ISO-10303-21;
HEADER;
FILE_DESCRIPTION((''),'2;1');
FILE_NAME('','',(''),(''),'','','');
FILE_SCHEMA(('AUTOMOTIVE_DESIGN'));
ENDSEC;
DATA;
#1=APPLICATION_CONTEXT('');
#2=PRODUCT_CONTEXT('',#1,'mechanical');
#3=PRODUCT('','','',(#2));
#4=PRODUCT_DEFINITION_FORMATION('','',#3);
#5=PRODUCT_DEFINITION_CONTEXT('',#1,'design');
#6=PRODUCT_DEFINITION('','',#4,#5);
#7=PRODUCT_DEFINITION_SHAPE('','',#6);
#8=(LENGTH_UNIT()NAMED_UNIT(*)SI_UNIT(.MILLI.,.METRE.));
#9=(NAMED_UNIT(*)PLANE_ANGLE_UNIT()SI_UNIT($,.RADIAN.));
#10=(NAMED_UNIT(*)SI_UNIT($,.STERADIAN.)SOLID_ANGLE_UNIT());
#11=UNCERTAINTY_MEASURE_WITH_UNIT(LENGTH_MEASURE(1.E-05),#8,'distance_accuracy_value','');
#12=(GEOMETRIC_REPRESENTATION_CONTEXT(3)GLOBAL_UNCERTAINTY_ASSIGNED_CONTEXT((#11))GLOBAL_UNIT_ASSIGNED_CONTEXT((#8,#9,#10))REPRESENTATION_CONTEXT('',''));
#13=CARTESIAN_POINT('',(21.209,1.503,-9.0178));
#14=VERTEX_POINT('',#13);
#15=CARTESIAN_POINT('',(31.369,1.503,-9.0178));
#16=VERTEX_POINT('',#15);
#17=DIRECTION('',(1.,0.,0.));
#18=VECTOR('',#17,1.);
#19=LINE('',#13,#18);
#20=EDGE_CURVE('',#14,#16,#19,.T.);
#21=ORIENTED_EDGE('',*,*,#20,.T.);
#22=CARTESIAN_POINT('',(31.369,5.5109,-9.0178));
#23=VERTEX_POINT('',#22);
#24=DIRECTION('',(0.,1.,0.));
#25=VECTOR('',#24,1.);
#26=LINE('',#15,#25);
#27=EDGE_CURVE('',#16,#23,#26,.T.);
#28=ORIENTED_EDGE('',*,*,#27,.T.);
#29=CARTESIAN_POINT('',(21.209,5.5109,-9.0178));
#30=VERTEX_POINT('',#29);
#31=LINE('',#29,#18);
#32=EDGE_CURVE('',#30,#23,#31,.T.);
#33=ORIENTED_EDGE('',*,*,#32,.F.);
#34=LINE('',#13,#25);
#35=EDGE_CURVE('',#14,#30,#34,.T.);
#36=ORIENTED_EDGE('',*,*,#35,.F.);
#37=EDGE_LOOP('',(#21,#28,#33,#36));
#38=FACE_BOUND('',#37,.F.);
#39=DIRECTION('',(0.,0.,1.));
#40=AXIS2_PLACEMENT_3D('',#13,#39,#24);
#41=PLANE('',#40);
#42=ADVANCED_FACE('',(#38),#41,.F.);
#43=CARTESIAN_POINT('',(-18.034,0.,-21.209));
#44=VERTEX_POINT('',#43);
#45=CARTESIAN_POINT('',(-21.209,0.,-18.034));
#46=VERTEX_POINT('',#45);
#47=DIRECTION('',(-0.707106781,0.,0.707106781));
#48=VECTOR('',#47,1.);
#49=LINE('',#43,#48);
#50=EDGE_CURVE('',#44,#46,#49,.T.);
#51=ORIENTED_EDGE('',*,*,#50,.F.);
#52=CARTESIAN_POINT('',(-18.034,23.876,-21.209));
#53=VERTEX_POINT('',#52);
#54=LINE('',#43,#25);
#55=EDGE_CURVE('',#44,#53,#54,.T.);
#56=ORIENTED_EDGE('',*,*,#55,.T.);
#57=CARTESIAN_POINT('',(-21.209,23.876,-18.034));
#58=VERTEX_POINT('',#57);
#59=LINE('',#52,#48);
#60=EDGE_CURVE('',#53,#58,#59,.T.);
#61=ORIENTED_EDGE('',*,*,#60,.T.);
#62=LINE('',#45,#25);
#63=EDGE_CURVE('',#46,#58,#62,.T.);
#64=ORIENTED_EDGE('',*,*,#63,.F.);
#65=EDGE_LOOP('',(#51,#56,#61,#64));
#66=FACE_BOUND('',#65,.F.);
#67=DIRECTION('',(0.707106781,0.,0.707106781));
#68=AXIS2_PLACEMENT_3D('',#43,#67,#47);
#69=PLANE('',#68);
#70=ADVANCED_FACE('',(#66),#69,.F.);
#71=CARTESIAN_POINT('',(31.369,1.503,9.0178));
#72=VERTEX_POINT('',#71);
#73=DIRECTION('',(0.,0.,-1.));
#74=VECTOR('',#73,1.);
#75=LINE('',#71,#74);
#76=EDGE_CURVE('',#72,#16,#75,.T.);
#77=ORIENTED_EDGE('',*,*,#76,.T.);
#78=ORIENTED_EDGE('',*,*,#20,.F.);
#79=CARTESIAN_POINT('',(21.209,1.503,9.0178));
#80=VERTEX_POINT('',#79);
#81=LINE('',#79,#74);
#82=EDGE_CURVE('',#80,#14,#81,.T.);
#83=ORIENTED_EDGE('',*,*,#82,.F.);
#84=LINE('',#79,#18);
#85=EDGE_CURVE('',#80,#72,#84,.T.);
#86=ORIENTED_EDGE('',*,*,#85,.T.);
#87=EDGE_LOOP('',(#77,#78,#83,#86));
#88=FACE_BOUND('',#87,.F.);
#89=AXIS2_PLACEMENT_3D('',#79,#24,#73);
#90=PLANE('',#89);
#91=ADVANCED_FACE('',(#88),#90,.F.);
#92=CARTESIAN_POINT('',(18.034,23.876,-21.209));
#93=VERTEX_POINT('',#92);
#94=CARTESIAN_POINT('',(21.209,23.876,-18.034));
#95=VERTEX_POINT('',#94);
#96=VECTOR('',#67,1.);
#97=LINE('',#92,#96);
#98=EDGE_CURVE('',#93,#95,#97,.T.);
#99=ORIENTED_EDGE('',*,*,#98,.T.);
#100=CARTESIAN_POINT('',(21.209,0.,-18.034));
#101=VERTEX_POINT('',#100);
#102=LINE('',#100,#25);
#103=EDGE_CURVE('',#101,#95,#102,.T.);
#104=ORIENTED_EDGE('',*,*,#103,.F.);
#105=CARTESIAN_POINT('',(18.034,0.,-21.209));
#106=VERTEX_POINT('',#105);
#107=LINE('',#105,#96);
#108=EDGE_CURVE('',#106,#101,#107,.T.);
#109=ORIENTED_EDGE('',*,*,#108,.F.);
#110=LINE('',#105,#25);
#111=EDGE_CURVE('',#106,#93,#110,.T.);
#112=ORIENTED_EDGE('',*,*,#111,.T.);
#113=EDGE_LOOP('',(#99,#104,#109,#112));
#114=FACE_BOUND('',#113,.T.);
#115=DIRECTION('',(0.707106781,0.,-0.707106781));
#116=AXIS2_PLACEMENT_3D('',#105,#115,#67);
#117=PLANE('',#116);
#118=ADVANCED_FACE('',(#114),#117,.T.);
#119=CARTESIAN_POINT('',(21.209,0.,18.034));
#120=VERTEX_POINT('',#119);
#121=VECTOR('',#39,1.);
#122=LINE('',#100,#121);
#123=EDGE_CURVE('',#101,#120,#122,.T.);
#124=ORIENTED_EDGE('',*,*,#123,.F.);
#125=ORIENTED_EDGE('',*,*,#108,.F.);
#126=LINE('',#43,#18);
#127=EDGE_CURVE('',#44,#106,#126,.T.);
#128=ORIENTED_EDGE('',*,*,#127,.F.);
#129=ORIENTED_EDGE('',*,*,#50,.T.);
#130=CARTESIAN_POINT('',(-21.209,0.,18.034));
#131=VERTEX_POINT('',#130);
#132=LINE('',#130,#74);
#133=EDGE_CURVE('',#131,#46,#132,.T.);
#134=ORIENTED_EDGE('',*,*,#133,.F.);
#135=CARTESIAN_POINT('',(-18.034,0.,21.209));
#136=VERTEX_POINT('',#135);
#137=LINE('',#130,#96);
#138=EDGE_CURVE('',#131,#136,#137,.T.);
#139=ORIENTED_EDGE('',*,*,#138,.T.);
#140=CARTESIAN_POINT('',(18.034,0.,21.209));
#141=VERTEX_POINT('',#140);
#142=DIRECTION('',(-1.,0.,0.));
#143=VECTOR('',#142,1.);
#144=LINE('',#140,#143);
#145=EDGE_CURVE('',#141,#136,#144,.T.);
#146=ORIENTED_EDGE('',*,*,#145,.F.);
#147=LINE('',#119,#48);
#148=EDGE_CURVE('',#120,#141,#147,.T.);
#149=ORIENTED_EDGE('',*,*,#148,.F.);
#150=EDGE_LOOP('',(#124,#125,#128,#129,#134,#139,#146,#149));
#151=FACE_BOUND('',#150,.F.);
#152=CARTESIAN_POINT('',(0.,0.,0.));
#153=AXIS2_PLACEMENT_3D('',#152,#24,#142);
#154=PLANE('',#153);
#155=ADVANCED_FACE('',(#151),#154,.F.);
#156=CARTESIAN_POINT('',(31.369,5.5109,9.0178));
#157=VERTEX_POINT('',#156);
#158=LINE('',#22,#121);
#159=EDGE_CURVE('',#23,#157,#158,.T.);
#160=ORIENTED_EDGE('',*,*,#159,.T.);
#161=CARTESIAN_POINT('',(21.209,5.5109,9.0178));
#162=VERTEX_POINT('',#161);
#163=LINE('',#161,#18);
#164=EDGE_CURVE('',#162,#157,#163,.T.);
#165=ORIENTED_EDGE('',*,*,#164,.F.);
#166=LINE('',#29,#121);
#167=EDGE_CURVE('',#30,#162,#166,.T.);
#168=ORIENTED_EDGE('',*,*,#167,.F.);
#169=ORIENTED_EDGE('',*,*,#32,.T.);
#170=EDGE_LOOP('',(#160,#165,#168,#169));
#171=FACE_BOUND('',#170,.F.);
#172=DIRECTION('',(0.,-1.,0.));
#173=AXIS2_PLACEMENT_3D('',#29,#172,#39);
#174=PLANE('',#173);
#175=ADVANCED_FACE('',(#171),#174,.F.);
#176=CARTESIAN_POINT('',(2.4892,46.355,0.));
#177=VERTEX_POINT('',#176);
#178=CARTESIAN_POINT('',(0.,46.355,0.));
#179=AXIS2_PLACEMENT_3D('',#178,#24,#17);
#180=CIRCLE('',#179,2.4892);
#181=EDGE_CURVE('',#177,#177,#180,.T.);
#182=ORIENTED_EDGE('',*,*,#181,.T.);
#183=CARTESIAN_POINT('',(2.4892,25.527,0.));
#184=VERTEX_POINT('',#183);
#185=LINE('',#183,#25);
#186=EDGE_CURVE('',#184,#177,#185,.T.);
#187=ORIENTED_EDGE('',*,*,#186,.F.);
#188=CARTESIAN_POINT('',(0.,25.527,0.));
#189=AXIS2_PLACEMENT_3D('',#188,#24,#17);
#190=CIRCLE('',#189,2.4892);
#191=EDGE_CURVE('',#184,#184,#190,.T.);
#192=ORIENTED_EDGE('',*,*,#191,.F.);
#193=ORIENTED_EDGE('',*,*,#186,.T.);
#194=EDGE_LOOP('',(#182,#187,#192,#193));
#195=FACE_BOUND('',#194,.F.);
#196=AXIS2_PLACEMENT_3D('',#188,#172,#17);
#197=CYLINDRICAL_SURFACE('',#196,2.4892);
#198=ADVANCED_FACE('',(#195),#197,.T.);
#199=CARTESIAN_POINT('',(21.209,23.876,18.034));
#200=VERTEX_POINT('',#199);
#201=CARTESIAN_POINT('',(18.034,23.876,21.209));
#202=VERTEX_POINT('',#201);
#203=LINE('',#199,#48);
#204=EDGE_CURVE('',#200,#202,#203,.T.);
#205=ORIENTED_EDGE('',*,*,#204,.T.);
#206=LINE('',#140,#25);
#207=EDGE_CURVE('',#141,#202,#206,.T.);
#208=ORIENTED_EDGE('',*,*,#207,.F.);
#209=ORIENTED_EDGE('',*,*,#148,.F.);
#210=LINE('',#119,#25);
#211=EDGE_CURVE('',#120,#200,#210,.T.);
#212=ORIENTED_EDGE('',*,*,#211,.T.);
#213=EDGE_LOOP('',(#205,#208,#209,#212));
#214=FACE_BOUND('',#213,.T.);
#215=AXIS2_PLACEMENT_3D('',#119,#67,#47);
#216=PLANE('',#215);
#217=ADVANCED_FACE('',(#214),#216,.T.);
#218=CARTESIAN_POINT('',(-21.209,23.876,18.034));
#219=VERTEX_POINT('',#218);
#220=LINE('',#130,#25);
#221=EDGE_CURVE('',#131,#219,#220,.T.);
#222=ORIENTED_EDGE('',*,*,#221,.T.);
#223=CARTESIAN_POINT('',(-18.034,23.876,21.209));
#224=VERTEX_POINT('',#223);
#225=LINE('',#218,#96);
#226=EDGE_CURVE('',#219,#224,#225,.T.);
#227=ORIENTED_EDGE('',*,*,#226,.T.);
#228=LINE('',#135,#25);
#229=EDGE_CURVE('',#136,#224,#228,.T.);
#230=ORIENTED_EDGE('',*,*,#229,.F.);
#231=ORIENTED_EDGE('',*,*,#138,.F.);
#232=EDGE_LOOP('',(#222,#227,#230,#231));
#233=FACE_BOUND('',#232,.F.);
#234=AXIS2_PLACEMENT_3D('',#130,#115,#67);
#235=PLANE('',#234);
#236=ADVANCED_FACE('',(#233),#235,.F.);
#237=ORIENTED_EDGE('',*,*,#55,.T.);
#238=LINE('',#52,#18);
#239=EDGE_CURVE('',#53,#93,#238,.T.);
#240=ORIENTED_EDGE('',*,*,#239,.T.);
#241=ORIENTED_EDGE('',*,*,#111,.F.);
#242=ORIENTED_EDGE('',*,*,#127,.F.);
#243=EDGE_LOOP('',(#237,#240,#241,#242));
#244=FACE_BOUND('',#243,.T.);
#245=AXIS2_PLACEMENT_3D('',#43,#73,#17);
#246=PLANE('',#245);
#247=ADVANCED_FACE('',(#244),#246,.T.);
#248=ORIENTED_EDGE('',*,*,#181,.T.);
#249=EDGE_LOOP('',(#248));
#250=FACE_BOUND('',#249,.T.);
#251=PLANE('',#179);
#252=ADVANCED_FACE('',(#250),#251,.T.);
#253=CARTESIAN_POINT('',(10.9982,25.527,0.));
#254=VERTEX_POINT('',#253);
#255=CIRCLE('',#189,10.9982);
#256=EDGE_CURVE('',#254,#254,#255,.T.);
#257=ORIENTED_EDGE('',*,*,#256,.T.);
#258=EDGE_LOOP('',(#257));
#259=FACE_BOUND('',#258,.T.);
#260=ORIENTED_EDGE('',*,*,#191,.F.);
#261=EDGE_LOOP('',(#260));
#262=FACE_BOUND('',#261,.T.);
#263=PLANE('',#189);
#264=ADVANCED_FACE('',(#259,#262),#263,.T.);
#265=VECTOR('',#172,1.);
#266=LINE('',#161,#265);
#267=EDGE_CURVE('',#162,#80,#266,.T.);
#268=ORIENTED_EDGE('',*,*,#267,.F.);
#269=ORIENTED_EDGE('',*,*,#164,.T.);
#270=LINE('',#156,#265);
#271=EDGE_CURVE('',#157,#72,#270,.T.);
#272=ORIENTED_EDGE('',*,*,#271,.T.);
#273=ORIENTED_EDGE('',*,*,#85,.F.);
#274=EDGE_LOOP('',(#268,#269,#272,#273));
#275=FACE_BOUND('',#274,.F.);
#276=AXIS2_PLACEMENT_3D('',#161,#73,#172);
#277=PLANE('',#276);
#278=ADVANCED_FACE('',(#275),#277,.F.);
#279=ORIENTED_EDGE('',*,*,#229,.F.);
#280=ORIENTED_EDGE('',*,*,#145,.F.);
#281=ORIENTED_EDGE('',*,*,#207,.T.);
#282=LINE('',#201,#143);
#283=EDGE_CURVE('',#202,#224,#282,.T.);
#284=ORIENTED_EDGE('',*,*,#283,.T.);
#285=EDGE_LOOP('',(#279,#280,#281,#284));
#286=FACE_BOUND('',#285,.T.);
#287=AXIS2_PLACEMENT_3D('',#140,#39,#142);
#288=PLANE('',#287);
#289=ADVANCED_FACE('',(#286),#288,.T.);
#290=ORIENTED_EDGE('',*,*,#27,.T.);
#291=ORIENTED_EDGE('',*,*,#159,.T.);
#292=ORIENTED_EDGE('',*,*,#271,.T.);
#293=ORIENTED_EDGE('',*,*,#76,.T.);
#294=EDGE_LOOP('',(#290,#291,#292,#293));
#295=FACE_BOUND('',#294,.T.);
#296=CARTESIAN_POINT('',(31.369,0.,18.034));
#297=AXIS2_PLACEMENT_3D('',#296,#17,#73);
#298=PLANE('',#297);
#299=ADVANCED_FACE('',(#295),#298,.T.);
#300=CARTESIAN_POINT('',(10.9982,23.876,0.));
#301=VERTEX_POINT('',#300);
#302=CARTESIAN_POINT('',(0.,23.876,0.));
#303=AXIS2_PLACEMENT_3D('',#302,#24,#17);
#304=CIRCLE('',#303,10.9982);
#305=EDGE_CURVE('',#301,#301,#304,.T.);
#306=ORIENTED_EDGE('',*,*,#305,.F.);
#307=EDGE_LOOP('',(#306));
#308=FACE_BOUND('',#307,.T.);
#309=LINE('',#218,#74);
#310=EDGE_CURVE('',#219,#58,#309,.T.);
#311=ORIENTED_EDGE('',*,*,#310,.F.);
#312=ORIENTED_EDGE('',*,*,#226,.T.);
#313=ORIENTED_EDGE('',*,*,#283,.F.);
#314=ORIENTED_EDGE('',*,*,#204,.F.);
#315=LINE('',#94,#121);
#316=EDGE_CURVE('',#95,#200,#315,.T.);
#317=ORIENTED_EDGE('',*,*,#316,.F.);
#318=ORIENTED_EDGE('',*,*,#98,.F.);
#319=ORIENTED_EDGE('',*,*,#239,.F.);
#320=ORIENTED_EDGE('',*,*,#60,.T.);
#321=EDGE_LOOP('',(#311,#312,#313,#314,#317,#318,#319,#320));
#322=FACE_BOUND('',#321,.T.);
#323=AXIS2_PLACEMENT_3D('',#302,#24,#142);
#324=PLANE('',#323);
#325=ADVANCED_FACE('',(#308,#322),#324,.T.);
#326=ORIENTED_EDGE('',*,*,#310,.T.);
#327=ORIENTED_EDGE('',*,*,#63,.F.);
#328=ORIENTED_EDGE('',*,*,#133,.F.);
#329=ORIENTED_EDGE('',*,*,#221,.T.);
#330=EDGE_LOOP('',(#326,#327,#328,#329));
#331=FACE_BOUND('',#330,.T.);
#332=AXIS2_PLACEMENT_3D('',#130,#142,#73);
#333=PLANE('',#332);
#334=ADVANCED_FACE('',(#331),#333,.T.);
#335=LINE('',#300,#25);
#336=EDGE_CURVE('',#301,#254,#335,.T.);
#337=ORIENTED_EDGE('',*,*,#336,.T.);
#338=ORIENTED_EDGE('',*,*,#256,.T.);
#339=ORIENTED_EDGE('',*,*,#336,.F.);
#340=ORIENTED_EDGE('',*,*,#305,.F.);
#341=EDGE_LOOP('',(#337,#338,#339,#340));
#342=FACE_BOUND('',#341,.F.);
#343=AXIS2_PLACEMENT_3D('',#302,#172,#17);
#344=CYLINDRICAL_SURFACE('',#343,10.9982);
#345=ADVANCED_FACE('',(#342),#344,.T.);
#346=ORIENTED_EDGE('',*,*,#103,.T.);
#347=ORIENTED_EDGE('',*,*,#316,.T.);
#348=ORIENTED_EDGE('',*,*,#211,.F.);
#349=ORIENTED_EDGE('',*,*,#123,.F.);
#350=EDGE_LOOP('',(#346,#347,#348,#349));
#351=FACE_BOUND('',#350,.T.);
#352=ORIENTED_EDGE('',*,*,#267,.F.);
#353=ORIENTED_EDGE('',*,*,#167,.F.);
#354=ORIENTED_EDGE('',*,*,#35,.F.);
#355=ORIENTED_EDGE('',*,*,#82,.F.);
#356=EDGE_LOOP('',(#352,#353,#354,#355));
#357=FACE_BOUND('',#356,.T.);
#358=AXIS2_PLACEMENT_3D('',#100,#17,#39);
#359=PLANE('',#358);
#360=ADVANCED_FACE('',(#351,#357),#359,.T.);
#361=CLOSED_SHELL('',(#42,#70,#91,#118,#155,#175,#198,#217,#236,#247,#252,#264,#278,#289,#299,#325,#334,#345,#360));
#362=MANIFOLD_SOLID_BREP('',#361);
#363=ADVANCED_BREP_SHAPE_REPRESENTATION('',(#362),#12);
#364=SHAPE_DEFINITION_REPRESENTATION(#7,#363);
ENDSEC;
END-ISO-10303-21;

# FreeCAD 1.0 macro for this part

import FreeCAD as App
import Part
import Sketcher
from FreeCAD import Vector
Q = App.Units.Quantity

doc = App.newDocument("Part")
params = doc.addObject("Spreadsheet::Sheet", "Params")
for row, (alias, value) in enumerate([
    ("pad1_length", "0.94 in"),
    ("sketch2_diameter", "0.866 in"),
    ("pad2_length", "0.065 in"),
    ("sketch3_diameter", "0.196 in"),
    ("pad3_length", "0.82 in"),
    ("pad4_length", "0.4 in"),
], start=1):
    params.set(f"A{row}", alias)
    params.set(f"B{row}", "=" + value)
    params.setAlias(f"B{row}", alias)

body = doc.addObject("PartDesign::Body", "Body")

# Sketch on XZ plane
sketch1 = body.newObject("Sketcher::SketchObject", "Sketch")
sketch1.AttachmentSupport = (doc.getObject("XZ_Plane"), [""])
sketch1.MapMode = "FlatFace"
sketch1.addGeometry([
    Part.LineSegment(Vector(-18, 21.2, 0), Vector(18, 21.2, 0)),  # 0
    Part.LineSegment(Vector(18, 21.2, 0), Vector(21.2, 18, 0)),  # 1
    Part.LineSegment(Vector(21.2, 18, 0), Vector(21.2, -18, 0)),  # 2
    Part.LineSegment(Vector(21.2, -18, 0), Vector(18, -21.2, 0)),  # 3
    Part.LineSegment(Vector(18, -21.2, 0), Vector(-18, -21.2, 0)),  # 4
    Part.LineSegment(Vector(-18, -21.2, 0), Vector(-21.2, -18, 0)),  # 5
    Part.LineSegment(Vector(-21.2, -18, 0), Vector(-21.2, 18, 0)),  # 6
    Part.LineSegment(Vector(-21.2, 18, 0), Vector(-18, 21.2, 0)),  # 7
], False)
sketch1.addConstraint([
    Sketcher.Constraint("Coincident", 0, 2, 1, 1),
    Sketcher.Constraint("Coincident", 1, 2, 2, 1),
    Sketcher.Constraint("Coincident", 2, 2, 3, 1),
    Sketcher.Constraint("Coincident", 3, 2, 4, 1),
    Sketcher.Constraint("Coincident", 4, 2, 5, 1),
    Sketcher.Constraint("Coincident", 5, 2, 6, 1),
    Sketcher.Constraint("Coincident", 6, 2, 7, 1),
    Sketcher.Constraint("Coincident", 7, 2, 0, 1),
    Sketcher.Constraint("Horizontal", 0),
    Sketcher.Constraint("Vertical", 2),
    Sketcher.Constraint("Horizontal", 4),
    Sketcher.Constraint("Vertical", 6),
    Sketcher.Constraint("Symmetric", 0, 2, 4, 2, -1, 1),
    Sketcher.Constraint("Symmetric", 1, 2, 5, 2, -1, 1),
    Sketcher.Constraint("Perpendicular", 1, 3),
    Sketcher.Constraint("Perpendicular", 5, 7),
    Sketcher.Constraint("Horizontal", 2, 2, 5, 2),
    Sketcher.Constraint("Horizontal", 1, 2, 6, 2),
    Sketcher.Constraint("Vertical", 0, 2, 3, 2),
    Sketcher.Constraint("Equal", 4, 2),
    Sketcher.Constraint("DistanceY", 3, 2, 0, 2, Q("1.67 in")),
    Sketcher.Constraint("DistanceX", 0, 2, 1, 2, Q("0.125 in")),
])
pad1 = body.newObject("PartDesign::Pad", "Pad")
pad1.Profile = sketch1
pad1.setExpression("Length", "Params.pad1_length")
pad1.Reversed = True

# Sketch on XZ plane
sketch2 = body.newObject("Sketcher::SketchObject", "Sketch001")
sketch2.AttachmentSupport = (doc.getObject("XZ_Plane"), [""])
sketch2.MapMode = "FlatFace"
sketch2.AttachmentOffset = App.Placement(Vector(0, 0, -0.94 * 25.4), App.Rotation())
sketch2.addGeometry(Part.Circle(Vector(0, 0, 0), Vector(0, 0, 1), 11), False)
sketch2.addConstraint([
    Sketcher.Constraint("Coincident", 0, 3, -1, 1),
    Sketcher.Constraint("Diameter", 0, Q("0.866 in")),
])
sketch2.setExpression("Constraints[1]", "Params.sketch2_diameter")
pad2 = body.newObject("PartDesign::Pad", "Pad001")
pad2.Profile = sketch2
pad2.setExpression("Length", "Params.pad2_length")
pad2.Reversed = True

# Sketch on XZ plane
sketch3 = body.newObject("Sketcher::SketchObject", "Sketch002")
sketch3.AttachmentSupport = (doc.getObject("XZ_Plane"), [""])
sketch3.MapMode = "FlatFace"
sketch3.AttachmentOffset = App.Placement(Vector(0, 0, -1.005 * 25.4), App.Rotation())
sketch3.addGeometry(Part.Circle(Vector(0, 0, 0), Vector(0, 0, 1), 2.5), False)
sketch3.addConstraint([
    Sketcher.Constraint("Coincident", 0, 3, -1, 1),
    Sketcher.Constraint("Diameter", 0, Q("0.196 in")),
])
sketch3.setExpression("Constraints[1]", "Params.sketch3_diameter")
pad3 = body.newObject("PartDesign::Pad", "Pad002")
pad3.Profile = sketch3
pad3.setExpression("Length", "Params.pad3_length")
pad3.Reversed = True

# Sketch on YZ plane
sketch4 = body.newObject("Sketcher::SketchObject", "Sketch003")
sketch4.AttachmentSupport = (doc.getObject("YZ_Plane"), [""])
sketch4.MapMode = "FlatFace"
sketch4.AttachmentOffset = App.Placement(Vector(0, 0, 0.835 * 25.4), App.Rotation())
sketch4.addGeometry([
    Part.LineSegment(Vector(5.5, 9, 0), Vector(1.5, 9, 0)),
    Part.LineSegment(Vector(1.5, 9, 0), Vector(1.5, -9, 0)),
    Part.LineSegment(Vector(1.5, -9, 0), Vector(5.5, -9, 0)),
    Part.LineSegment(Vector(5.5, -9, 0), Vector(5.5, 9, 0)),
], False)
sketch4.addConstraint([
    Sketcher.Constraint("Coincident", 0, 2, 1, 1),
    Sketcher.Constraint("Coincident", 1, 2, 2, 1),
    Sketcher.Constraint("Coincident", 2, 2, 3, 1),
    Sketcher.Constraint("Coincident", 3, 2, 0, 1),
    Sketcher.Constraint("Horizontal", 0),
    Sketcher.Constraint("Vertical", 1),
    Sketcher.Constraint("Horizontal", 2),
    Sketcher.Constraint("Vertical", 3),
    Sketcher.Constraint("DistanceX", 0, 2, 0, 1, Q("0.1578 in")),
    Sketcher.Constraint("DistanceY", 1, 2, 1, 1, Q("18.0356 mm")),
    Sketcher.Constraint("DistanceX", -1, 1, 0, 2, Q("1.503 mm")),
    Sketcher.Constraint("DistanceY", -1, 1, 0, 2, Q("9.0178 mm")),
])
pad4 = body.newObject("PartDesign::Pad", "Pad003")
pad4.Profile = sketch4
pad4.setExpression("Length", "Params.pad4_length")

doc.recompute()
